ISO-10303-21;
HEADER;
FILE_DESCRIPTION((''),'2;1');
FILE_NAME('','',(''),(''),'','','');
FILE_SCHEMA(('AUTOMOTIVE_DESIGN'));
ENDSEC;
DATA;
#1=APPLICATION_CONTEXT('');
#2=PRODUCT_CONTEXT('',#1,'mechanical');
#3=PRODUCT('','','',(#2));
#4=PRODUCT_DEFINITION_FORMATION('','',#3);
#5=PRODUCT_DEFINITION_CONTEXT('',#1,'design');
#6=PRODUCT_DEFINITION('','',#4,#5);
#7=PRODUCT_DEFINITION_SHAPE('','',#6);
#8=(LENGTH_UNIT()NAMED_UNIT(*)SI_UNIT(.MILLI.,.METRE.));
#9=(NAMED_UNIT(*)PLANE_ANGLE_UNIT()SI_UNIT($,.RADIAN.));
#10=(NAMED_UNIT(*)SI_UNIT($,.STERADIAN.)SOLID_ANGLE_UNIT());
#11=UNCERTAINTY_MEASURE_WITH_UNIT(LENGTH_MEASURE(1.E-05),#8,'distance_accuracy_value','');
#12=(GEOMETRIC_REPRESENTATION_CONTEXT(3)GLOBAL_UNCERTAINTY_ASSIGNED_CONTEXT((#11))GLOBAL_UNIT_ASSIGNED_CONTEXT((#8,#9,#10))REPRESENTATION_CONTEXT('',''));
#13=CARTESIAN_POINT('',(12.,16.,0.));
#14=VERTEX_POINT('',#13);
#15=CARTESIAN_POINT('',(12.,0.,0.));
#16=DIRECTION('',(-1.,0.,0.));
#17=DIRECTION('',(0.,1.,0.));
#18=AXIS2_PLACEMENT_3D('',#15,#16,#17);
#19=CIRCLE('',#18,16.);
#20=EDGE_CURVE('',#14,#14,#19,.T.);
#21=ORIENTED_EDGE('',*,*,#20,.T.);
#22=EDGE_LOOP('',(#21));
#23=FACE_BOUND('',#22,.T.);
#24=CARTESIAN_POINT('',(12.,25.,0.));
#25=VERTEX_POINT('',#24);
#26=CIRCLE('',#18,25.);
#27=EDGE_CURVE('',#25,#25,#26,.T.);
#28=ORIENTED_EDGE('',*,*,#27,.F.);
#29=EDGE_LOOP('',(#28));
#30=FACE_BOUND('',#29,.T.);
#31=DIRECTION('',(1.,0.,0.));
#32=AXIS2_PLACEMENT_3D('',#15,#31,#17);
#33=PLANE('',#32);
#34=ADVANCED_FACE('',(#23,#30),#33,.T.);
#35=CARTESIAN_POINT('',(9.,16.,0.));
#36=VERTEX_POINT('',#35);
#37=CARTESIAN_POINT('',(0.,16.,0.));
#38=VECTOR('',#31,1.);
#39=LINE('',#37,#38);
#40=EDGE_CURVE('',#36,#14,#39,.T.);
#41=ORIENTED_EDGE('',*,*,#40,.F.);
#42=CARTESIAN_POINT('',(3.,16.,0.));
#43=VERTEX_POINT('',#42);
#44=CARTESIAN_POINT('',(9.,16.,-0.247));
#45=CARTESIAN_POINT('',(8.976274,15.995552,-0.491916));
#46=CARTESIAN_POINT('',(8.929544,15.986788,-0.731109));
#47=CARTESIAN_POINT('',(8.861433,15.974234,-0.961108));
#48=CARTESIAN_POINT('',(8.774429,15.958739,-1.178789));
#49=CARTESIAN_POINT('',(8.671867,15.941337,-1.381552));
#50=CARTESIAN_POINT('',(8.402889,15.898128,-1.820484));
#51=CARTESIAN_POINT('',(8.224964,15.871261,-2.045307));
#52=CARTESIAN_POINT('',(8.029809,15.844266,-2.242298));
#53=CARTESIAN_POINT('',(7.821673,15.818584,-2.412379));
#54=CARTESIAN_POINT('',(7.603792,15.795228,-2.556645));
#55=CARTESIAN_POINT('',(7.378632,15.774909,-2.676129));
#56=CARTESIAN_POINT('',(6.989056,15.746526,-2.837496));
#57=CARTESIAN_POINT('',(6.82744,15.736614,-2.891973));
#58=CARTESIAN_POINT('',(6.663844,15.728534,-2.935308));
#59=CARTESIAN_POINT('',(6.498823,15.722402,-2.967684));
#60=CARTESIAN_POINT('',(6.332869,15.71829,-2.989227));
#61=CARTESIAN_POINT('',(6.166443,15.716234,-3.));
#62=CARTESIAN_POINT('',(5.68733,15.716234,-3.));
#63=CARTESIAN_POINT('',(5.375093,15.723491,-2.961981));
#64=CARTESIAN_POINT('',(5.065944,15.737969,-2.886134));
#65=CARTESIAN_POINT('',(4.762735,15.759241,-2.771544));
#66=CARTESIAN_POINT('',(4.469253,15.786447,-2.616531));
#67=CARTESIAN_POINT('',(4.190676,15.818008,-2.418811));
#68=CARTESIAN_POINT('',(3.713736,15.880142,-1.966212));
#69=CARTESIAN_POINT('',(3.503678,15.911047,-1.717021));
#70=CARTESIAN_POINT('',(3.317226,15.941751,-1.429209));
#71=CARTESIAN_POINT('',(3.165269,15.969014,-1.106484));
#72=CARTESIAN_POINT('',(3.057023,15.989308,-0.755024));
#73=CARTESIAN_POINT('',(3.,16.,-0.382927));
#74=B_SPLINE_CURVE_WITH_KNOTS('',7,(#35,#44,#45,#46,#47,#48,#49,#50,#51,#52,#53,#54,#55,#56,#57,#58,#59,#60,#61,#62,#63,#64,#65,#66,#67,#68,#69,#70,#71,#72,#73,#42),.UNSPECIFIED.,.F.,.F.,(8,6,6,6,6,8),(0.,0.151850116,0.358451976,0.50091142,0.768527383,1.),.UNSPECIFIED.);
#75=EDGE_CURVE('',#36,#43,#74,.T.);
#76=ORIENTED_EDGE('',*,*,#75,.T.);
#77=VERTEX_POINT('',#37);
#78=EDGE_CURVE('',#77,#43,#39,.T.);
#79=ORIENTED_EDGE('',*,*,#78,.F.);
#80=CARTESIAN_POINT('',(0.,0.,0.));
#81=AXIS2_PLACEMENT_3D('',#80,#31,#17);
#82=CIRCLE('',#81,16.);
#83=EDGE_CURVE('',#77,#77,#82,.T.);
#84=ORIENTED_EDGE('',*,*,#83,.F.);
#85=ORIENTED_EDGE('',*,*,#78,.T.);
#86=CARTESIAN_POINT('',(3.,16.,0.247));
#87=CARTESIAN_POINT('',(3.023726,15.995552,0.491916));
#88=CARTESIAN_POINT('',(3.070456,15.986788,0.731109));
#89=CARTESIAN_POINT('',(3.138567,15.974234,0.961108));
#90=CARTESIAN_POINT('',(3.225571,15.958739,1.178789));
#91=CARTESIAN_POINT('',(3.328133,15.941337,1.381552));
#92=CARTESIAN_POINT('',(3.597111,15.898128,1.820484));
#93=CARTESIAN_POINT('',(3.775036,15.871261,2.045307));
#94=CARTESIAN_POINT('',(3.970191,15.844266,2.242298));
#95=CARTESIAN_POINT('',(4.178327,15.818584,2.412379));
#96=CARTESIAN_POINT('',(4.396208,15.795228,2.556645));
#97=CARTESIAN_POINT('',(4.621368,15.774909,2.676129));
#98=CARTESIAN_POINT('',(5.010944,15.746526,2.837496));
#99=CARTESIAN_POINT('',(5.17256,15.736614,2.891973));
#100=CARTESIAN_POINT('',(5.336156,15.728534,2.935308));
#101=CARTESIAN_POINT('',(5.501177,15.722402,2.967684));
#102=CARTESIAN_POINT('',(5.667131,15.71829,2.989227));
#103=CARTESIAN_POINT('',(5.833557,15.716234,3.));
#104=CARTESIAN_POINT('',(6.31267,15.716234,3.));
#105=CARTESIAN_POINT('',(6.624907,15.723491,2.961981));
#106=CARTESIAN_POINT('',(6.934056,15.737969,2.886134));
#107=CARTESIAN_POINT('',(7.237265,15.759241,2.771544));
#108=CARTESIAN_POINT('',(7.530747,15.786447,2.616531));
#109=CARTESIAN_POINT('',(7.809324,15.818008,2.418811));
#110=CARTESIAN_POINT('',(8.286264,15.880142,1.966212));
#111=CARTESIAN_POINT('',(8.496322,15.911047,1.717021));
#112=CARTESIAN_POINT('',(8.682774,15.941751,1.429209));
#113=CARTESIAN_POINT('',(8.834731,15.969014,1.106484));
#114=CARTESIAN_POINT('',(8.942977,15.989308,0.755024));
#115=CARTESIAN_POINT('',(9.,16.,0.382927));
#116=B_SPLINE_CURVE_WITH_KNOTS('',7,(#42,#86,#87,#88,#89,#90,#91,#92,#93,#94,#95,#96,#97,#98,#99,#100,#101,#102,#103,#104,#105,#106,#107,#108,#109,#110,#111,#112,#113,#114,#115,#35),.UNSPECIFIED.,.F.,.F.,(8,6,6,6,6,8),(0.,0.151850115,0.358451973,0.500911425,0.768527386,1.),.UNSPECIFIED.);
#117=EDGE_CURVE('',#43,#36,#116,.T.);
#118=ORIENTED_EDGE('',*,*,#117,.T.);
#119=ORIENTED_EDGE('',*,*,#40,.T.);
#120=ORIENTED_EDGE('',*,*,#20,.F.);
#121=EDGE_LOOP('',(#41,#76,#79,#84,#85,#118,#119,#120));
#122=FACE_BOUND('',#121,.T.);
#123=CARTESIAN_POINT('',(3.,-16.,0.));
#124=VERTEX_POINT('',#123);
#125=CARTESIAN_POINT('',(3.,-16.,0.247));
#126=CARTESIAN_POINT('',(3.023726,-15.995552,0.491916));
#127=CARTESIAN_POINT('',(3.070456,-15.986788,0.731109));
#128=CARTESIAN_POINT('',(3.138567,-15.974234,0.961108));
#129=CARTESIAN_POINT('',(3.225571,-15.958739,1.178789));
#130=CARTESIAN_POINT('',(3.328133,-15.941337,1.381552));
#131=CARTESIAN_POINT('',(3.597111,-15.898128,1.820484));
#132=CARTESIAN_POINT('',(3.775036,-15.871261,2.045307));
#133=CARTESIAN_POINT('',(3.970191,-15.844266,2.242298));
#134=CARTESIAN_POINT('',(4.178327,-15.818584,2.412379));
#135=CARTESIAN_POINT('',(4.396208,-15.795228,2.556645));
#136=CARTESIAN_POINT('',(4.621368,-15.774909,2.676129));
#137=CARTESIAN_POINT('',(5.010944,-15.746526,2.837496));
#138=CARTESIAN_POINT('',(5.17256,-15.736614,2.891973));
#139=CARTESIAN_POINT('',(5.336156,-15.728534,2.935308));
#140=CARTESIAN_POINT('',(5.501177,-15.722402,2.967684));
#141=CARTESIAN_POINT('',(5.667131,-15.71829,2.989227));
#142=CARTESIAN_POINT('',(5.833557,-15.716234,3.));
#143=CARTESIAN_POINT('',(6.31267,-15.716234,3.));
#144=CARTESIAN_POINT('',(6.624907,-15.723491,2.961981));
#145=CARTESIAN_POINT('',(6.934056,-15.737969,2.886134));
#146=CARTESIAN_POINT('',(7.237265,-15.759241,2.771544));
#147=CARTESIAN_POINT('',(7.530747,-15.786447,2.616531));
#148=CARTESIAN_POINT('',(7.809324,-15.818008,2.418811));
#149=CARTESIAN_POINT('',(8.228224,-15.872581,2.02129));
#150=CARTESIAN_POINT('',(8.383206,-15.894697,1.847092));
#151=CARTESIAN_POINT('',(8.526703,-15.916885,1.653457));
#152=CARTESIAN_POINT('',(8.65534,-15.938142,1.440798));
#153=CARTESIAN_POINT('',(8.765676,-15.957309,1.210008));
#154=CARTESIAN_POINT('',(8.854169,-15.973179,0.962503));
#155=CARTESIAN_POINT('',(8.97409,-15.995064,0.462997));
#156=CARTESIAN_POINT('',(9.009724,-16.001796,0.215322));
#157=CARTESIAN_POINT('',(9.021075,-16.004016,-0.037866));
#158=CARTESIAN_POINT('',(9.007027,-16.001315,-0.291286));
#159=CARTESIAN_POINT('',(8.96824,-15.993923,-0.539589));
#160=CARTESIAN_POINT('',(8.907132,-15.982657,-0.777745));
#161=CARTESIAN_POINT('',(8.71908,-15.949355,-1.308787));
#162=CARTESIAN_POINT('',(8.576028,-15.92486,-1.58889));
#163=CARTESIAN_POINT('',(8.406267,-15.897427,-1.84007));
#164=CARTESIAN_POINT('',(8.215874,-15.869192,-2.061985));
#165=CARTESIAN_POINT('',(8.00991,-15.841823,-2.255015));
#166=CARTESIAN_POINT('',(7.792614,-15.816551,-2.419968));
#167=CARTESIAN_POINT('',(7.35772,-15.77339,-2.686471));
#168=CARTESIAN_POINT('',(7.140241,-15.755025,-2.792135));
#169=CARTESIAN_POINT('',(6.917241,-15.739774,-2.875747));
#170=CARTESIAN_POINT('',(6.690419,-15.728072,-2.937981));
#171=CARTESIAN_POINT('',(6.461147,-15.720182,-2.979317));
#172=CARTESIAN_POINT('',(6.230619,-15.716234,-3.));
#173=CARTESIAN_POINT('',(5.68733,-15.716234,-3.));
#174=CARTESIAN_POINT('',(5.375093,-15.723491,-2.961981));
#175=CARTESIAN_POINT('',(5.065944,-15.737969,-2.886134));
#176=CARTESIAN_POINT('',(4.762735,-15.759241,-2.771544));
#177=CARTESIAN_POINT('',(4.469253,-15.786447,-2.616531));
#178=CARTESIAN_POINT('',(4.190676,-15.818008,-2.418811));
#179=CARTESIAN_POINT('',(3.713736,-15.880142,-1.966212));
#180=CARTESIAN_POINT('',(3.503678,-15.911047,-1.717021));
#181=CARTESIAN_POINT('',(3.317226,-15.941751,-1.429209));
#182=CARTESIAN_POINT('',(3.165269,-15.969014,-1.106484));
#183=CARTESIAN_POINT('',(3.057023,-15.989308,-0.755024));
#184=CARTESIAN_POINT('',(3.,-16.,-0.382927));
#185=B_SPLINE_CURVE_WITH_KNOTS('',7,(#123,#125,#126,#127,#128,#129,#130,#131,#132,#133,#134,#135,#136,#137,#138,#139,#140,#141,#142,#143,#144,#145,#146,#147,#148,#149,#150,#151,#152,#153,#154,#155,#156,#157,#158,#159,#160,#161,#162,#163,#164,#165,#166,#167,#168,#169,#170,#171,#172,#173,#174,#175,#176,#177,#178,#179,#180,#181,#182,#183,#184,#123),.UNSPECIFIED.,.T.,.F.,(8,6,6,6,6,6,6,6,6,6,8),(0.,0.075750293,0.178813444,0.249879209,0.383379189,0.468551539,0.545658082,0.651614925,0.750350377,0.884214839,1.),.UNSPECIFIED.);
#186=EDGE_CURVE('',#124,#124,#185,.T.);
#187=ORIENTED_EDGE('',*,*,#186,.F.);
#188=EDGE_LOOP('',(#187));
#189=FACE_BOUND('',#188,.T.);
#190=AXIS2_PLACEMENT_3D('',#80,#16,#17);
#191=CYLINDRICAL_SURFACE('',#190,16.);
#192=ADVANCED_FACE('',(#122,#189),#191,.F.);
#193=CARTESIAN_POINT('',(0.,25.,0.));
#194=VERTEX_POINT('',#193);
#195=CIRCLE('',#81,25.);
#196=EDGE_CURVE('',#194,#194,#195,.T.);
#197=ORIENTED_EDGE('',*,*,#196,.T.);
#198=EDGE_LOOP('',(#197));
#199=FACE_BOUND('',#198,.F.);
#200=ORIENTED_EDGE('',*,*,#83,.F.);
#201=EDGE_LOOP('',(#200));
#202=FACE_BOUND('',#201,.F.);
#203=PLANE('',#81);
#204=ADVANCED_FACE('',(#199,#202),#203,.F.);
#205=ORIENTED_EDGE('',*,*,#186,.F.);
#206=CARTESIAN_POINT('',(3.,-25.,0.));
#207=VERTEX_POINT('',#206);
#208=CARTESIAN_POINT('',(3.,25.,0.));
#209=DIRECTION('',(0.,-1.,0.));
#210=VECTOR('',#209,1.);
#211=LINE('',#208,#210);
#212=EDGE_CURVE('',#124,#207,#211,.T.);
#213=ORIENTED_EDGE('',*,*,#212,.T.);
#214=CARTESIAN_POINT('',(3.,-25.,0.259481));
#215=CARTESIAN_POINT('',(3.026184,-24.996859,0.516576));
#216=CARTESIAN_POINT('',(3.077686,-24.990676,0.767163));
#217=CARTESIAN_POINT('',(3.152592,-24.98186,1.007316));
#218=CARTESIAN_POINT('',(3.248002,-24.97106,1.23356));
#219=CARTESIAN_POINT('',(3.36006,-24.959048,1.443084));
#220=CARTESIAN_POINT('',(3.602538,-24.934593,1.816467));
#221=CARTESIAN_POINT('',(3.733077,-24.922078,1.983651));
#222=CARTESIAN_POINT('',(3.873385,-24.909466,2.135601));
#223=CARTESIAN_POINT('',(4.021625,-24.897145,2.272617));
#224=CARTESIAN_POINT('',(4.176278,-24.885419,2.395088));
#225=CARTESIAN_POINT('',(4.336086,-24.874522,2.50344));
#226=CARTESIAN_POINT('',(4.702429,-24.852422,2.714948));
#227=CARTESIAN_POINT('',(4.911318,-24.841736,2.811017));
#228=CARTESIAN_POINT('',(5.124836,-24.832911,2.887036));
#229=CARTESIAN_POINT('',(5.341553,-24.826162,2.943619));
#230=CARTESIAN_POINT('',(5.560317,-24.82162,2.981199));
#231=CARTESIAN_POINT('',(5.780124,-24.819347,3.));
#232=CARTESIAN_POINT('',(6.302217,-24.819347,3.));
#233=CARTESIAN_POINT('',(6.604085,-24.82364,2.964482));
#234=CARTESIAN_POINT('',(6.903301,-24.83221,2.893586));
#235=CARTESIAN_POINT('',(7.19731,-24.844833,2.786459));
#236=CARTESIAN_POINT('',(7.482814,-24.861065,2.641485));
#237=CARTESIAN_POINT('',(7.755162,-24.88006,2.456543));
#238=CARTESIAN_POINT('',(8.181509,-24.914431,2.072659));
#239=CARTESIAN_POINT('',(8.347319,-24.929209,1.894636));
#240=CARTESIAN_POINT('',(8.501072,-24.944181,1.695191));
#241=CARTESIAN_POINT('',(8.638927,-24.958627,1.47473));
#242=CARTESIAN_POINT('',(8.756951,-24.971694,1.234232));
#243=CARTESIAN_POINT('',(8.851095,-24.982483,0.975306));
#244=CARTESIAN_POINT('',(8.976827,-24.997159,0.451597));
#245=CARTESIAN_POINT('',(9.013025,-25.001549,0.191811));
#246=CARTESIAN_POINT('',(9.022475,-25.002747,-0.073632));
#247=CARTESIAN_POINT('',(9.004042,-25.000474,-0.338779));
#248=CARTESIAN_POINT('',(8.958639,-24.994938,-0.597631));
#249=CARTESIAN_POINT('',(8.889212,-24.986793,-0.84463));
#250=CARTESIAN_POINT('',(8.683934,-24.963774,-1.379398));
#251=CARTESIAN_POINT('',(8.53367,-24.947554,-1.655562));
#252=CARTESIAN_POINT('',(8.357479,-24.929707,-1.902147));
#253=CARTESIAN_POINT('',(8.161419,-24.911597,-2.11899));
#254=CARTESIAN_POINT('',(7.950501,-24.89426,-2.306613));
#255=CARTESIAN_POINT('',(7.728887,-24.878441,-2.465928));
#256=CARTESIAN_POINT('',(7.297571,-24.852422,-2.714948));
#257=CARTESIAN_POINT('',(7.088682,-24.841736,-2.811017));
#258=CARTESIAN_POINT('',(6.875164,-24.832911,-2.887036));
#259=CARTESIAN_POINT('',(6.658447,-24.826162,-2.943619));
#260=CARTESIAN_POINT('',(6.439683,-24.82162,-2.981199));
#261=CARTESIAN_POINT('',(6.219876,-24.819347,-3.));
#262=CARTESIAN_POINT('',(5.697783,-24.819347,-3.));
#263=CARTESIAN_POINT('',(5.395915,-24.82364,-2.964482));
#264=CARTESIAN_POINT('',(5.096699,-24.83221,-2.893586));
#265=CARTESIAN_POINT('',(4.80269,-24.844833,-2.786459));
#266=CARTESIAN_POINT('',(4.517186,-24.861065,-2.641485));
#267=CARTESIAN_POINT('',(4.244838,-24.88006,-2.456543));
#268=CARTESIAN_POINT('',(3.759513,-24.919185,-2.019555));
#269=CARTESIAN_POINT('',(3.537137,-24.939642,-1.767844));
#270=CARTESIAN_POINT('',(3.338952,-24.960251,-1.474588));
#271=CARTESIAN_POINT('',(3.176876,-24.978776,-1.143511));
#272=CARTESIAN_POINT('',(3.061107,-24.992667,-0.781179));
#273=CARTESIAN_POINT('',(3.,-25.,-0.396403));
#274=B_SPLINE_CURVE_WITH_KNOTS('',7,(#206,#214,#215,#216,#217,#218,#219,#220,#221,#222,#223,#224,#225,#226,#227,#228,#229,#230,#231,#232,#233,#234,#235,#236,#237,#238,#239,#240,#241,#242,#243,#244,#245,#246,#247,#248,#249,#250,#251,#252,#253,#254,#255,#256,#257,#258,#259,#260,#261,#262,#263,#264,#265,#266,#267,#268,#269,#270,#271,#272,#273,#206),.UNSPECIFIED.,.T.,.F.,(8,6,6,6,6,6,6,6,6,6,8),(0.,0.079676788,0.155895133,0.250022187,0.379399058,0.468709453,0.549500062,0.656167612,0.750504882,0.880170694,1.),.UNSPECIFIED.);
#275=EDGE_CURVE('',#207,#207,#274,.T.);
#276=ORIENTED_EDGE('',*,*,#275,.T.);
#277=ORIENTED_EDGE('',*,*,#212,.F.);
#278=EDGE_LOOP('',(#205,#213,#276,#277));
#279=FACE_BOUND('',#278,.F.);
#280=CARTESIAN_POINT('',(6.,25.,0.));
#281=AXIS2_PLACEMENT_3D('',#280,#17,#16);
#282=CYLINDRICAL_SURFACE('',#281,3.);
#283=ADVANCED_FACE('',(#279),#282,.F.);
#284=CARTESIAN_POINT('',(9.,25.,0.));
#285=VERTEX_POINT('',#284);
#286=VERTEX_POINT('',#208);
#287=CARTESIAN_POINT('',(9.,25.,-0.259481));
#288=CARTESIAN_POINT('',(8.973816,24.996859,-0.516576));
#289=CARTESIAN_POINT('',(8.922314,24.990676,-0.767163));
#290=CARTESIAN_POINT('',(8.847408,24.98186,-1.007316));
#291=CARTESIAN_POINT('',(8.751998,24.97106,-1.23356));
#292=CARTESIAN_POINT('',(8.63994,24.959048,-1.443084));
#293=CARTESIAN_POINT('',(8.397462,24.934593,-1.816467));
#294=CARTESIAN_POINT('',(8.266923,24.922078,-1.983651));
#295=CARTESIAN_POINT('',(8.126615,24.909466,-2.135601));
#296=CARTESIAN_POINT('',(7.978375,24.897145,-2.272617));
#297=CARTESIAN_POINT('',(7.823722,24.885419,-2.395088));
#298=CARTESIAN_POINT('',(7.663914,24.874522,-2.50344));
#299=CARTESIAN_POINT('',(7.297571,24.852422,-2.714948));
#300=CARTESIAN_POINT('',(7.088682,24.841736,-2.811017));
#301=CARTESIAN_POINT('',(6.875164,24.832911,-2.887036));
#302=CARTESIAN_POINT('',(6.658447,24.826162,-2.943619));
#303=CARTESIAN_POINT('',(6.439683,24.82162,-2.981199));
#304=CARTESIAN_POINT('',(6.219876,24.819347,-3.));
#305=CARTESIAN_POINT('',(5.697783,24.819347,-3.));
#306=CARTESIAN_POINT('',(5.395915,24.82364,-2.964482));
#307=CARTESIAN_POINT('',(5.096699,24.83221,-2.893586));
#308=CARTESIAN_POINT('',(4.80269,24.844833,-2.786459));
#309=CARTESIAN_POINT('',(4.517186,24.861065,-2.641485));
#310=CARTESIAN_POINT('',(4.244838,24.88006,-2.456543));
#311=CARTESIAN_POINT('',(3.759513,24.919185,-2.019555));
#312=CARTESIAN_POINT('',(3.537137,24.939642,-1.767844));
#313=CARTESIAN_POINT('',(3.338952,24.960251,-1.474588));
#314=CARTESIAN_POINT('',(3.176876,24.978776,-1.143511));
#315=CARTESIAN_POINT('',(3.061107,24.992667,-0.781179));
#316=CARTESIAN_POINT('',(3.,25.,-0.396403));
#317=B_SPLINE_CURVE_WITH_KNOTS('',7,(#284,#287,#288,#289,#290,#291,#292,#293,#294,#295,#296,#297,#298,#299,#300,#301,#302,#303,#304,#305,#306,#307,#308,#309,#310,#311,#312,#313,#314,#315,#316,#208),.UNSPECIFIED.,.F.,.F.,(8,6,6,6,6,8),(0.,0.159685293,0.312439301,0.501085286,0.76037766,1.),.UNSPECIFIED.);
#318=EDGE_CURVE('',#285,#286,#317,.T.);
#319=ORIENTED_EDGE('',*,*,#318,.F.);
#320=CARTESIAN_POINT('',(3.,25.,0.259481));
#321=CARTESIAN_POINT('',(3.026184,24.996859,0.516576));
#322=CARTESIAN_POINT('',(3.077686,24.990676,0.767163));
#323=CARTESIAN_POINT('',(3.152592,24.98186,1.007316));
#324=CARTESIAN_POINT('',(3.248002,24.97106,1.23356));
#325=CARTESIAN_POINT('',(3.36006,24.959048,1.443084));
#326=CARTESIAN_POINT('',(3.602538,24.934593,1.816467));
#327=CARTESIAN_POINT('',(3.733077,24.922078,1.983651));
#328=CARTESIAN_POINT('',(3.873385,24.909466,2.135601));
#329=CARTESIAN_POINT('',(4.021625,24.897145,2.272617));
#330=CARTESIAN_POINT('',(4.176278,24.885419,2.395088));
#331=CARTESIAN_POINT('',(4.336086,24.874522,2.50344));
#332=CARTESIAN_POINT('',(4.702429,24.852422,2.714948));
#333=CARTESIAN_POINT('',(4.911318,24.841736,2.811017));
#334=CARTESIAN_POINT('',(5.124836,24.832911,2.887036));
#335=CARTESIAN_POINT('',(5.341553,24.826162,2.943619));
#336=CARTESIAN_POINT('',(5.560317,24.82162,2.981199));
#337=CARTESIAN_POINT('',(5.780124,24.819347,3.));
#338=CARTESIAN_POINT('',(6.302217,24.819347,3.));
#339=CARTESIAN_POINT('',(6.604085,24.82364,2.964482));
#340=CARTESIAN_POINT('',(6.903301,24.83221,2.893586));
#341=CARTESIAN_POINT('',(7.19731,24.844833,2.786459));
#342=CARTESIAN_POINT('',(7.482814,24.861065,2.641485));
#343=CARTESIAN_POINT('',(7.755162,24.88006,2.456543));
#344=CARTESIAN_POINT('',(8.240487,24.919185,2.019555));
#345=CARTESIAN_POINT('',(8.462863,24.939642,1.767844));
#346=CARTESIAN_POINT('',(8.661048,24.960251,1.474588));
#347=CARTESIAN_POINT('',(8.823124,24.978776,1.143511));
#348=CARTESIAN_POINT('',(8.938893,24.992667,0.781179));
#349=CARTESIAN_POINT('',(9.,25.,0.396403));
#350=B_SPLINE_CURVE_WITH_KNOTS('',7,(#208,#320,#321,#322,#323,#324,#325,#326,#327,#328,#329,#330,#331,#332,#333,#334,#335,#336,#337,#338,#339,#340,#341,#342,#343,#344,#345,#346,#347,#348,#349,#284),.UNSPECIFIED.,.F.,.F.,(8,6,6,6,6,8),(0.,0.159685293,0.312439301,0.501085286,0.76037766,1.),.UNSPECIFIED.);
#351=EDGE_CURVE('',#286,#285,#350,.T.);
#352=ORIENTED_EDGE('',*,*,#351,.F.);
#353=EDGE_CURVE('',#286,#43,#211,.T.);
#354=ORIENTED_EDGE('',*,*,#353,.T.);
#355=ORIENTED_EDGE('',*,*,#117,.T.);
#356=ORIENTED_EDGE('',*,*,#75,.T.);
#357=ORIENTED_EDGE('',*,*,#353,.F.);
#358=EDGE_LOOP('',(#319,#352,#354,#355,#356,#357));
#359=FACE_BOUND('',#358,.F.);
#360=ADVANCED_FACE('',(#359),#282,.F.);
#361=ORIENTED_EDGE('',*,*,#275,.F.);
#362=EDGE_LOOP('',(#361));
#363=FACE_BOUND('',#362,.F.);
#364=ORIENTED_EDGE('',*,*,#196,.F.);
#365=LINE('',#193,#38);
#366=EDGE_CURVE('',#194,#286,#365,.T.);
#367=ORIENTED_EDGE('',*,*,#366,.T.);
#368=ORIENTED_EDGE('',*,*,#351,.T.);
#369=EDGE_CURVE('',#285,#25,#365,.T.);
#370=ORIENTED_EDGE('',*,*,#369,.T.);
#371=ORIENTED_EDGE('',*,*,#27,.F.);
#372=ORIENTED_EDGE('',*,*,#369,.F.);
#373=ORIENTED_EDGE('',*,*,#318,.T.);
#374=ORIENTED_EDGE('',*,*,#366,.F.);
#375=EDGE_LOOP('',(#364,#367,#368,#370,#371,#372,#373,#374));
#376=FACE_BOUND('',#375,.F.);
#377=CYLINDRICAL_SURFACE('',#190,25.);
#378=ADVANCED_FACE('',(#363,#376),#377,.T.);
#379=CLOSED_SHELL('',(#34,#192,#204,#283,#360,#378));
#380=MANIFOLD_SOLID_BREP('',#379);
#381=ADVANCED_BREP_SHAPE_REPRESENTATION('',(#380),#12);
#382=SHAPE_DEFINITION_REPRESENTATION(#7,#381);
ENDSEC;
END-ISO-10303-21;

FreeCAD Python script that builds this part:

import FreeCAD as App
import Part
import Sketcher

V = App.Vector

doc = App.newDocument("Part")
params = doc.addObject("Spreadsheet::Sheet", "Params")
for row, (alias, value) in enumerate([
    ("sketch1_diameter", "50 mm"),
    ("sketch1_diameter2", "32 mm"),
    ("pad1_length", "12 mm"),
    ("sketch2_diameter", "6 mm"),
], start=1):
    params.set(f"A{row}", alias)
    params.set(f"B{row}", "=" + value)
    params.setAlias(f"B{row}", alias)

body = doc.addObject("PartDesign::Body", "Body")

sketch1 = doc.addObject("Sketcher::SketchObject", "Sketch")
body.addObject(sketch1)
sketch1.AttachmentSupport = (doc.YZ_Plane, [""])
sketch1.MapMode = "FlatFace"
sketch1.addGeometry([
    Part.Circle(V(0, 0, 0), V(0, 0, 1), 25),
    Part.Circle(V(0, 0, 0), V(0, 0, 1), 16),
], False)
sketch1.addConstraint([
    Sketcher.Constraint("Coincident", 0, 3, -1, 1),
    Sketcher.Constraint("Coincident", 1, 3, -1, 1),
    Sketcher.Constraint("Diameter", 0, 50.0),
    Sketcher.Constraint("Diameter", 1, 32.0),
])
sketch1.setExpression("Constraints[2]", "Params.sketch1_diameter")
sketch1.setExpression("Constraints[3]", "Params.sketch1_diameter2")
pad1 = doc.addObject("PartDesign::Pad", "Pad")
body.addObject(pad1)
pad1.Profile = sketch1
pad1.setExpression("Length", "Params.pad1_length")

sketch2 = doc.addObject("Sketcher::SketchObject", "Sketch001")
body.addObject(sketch2)
sketch2.AttachmentSupport = (doc.XZ_Plane, [""])
sketch2.MapMode = "FlatFace"
sketch2.AttachmentOffset = App.Placement(V(0, 0, -25), App.Rotation())
sketch2.addGeometry(Part.Circle(V(6, 0, 0), V(0, 0, 1), 3), False)
sketch2.addConstraint([
    Sketcher.Constraint("PointOnObject", 0, 3, -1),
    Sketcher.Constraint("Diameter", 0, 6.0),
    Sketcher.Constraint("DistanceX", -1, 1, 0, 3, 6.0),
])
sketch2.setExpression("Constraints[1]", "Params.sketch2_diameter")
pocket1 = doc.addObject("PartDesign::Pocket", "Pocket")
body.addObject(pocket1)
pocket1.Profile = sketch2
pocket1.Type = "ThroughAll"
pocket1.Reversed = True

doc.recompute()
